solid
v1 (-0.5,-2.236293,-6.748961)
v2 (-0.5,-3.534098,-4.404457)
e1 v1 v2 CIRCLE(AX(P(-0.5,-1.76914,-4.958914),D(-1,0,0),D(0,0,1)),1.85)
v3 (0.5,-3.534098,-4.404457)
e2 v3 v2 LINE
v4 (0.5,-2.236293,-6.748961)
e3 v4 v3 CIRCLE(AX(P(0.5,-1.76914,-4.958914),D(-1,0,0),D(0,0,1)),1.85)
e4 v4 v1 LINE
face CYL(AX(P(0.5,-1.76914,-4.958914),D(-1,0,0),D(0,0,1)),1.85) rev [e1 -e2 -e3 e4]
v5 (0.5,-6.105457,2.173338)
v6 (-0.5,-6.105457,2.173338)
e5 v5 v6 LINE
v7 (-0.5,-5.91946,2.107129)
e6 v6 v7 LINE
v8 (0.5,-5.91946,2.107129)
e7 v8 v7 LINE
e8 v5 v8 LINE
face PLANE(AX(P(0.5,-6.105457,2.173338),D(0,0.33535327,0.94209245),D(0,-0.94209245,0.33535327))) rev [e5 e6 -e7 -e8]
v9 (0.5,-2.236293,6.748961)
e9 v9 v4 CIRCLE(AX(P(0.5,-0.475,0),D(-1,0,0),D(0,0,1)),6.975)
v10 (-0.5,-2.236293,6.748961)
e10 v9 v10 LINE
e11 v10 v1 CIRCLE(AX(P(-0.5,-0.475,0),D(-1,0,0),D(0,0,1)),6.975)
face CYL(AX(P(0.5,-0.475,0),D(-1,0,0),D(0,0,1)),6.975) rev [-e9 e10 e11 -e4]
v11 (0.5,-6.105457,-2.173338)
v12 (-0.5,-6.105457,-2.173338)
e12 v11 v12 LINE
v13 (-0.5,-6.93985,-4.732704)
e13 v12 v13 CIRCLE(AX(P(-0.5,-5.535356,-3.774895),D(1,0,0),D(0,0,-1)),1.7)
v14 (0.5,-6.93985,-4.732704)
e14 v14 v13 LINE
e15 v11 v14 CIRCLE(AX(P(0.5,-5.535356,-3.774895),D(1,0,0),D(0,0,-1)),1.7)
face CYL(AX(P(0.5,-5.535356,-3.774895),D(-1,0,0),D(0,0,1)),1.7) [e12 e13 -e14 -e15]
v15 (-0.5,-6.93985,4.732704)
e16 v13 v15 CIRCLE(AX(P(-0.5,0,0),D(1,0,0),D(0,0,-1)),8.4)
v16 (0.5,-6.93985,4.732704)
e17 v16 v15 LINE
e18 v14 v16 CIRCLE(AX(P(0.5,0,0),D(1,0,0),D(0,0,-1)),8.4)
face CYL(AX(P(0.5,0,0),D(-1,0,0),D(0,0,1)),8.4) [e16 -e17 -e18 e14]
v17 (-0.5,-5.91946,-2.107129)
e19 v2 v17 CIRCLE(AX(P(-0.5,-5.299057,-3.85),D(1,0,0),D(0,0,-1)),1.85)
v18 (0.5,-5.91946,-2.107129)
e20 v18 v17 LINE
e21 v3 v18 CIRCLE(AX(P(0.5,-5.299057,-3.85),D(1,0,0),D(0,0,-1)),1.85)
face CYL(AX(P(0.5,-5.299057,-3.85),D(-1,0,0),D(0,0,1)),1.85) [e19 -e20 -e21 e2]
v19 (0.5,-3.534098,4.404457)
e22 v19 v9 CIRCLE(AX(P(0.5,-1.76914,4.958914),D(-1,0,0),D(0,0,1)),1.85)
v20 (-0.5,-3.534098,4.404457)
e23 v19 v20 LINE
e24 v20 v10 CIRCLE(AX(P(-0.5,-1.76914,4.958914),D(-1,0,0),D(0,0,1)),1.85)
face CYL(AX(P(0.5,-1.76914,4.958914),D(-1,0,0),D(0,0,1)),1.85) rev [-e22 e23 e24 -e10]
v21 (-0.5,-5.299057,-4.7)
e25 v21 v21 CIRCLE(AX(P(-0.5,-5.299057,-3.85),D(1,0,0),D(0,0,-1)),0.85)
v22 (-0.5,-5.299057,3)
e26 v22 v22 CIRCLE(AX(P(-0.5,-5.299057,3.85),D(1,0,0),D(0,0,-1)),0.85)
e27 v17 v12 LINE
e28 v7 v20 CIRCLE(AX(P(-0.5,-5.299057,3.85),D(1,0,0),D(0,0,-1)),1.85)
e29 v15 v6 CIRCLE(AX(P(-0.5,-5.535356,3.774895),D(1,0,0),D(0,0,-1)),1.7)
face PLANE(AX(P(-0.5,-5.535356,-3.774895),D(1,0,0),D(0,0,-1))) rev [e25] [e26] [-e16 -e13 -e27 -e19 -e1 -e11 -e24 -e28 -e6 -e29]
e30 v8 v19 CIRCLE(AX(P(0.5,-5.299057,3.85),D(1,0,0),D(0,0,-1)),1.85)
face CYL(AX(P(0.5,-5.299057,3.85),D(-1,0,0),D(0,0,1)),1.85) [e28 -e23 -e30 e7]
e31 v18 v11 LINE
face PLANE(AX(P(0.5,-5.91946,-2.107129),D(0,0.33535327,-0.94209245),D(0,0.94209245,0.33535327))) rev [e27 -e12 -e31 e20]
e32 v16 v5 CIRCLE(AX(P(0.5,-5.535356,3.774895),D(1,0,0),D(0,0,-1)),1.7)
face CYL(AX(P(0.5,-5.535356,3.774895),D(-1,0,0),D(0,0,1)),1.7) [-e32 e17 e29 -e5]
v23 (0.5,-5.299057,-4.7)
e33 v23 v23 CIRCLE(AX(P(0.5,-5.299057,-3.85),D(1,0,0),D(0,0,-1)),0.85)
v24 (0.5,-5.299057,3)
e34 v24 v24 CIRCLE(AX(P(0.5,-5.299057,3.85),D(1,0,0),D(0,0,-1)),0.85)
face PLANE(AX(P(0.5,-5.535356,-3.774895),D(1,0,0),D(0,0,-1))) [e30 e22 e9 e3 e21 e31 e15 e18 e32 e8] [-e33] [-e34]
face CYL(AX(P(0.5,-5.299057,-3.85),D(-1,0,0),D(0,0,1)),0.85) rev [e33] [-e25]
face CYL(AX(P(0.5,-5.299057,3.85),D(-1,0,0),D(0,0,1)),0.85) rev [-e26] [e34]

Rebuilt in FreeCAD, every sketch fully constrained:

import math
import FreeCAD as App
import Part
import Sketcher
Q = App.Units.Quantity

doc = App.newDocument("Part")
body = doc.addObject("PartDesign::Body", "Body")

# Sketch on YZ plane
sketch1 = body.newObject("Sketcher::SketchObject", "Sketch")
sketch1.AttachmentSupport = (doc.getObject("YZ_Plane"), [""])
sketch1.MapMode = "FlatFace"
sketch1.addGeometry([
    Part.LineSegment(App.Vector(-6.11, 2.17, 0), App.Vector(-5.92, 2.11, 0)),  # 0
    Part.ArcOfCircle(Part.Circle(App.Vector(-5.3, 3.85, 0), App.Vector(0, 0, 1), 1.85), math.radians(-110), math.radians(17)),  # 1
    Part.ArcOfCircle(Part.Circle(App.Vector(-1.77, 4.96, 0), App.Vector(0, 0, 1), 1.85), math.radians(105), math.radians(197)),  # 2
    Part.ArcOfCircle(Part.Circle(App.Vector(-0.47, 0, 0), App.Vector(0, 0, 1), 6.97), math.radians(-105), math.radians(105)),  # 3
    Part.ArcOfCircle(Part.Circle(App.Vector(-1.77, -4.96, 0), App.Vector(0, 0, 1), 1.85), math.radians(163), math.radians(255)),  # 4
    Part.ArcOfCircle(Part.Circle(App.Vector(-5.3, -3.85, 0), App.Vector(0, 0, 1), 1.85), math.radians(-17), math.radians(110)),  # 5
    Part.LineSegment(App.Vector(-5.92, -2.11, 0), App.Vector(-6.11, -2.17, 0)),  # 6
    Part.ArcOfCircle(Part.Circle(App.Vector(-5.54, -3.77, 0), App.Vector(0, 0, 1), 1.7), math.radians(110), math.radians(214)),  # 7
    Part.ArcOfCircle(Part.Circle(App.Vector(0, 0, 0), App.Vector(0, 0, 1), 8.4), math.radians(-146), math.radians(146)),  # 8
    Part.ArcOfCircle(Part.Circle(App.Vector(-5.54, 3.77, 0), App.Vector(0, 0, 1), 1.7), math.radians(146), math.radians(250)),  # 9
    Part.Circle(App.Vector(-5.3, 3.85, 0), App.Vector(0, 0, 1), 0.85),  # 10
    Part.Circle(App.Vector(-5.3, -3.85, 0), App.Vector(0, 0, 1), 0.85),  # 11
], False)
sketch1.addConstraint([
    Sketcher.Constraint("Tangent", 0, 2, 1, 1),
    Sketcher.Constraint("Tangent", 1, 2, 2, 2),
    Sketcher.Constraint("Tangent", 2, 1, 3, 2),
    Sketcher.Constraint("Tangent", 3, 1, 4, 2),
    Sketcher.Constraint("Tangent", 4, 1, 5, 1),
    Sketcher.Constraint("Tangent", 5, 2, 6, 1),
    Sketcher.Constraint("Tangent", 6, 2, 7, 1),
    Sketcher.Constraint("Tangent", 7, 2, 8, 1),
    Sketcher.Constraint("Tangent", 8, 2, 9, 1),
    Sketcher.Constraint("Tangent", 9, 2, 0, 1),
    Sketcher.Constraint("Coincident", 8, 3, -1, 1),
    Sketcher.Constraint("Coincident", 10, 3, 1, 3),
    Sketcher.Constraint("Coincident", 11, 3, 5, 3),
    Sketcher.Constraint("Equal", 1, 2),
    Sketcher.Constraint("Equal", 2, 4),
    Sketcher.Constraint("Equal", 4, 5),
    Sketcher.Constraint("Equal", 7, 9),
    Sketcher.Constraint("Equal", 10, 11),
    Sketcher.Constraint("Symmetric", 2, 3, 4, 3, -1),
    Sketcher.Constraint("Symmetric", 0, 2, 5, 2, -1),
    Sketcher.Constraint("Diameter", 10, Q("1.7 mm")),
    Sketcher.Constraint("Radius", 7, Q("1.7 mm")),
    Sketcher.Constraint("Radius", 8, Q("8.4 mm")),
    Sketcher.Constraint("Radius", 1, Q("1.85 mm")),
    Sketcher.Constraint("Radius", 3, Q("6.975 mm")),
    Sketcher.Constraint("DistanceY", 5, 3, 1, 3, Q("7.7 mm")),
    Sketcher.Constraint("DistanceX", 3, 3, -1, 1, Q("0.475 mm")),
    Sketcher.Constraint("DistanceX", 1, 2, -1, 1, Q("3.534098 mm")),
    Sketcher.Constraint("DistanceX", 7, 3, 5, 3, Q("0.2363 mm")),
])
pad1 = body.newObject("PartDesign::Pad", "Pad")
pad1.Profile = sketch1
pad1.Type = "TwoLengths"
pad1.Length = 0.5
pad1.Length2 = 0.5

doc.recompute()
